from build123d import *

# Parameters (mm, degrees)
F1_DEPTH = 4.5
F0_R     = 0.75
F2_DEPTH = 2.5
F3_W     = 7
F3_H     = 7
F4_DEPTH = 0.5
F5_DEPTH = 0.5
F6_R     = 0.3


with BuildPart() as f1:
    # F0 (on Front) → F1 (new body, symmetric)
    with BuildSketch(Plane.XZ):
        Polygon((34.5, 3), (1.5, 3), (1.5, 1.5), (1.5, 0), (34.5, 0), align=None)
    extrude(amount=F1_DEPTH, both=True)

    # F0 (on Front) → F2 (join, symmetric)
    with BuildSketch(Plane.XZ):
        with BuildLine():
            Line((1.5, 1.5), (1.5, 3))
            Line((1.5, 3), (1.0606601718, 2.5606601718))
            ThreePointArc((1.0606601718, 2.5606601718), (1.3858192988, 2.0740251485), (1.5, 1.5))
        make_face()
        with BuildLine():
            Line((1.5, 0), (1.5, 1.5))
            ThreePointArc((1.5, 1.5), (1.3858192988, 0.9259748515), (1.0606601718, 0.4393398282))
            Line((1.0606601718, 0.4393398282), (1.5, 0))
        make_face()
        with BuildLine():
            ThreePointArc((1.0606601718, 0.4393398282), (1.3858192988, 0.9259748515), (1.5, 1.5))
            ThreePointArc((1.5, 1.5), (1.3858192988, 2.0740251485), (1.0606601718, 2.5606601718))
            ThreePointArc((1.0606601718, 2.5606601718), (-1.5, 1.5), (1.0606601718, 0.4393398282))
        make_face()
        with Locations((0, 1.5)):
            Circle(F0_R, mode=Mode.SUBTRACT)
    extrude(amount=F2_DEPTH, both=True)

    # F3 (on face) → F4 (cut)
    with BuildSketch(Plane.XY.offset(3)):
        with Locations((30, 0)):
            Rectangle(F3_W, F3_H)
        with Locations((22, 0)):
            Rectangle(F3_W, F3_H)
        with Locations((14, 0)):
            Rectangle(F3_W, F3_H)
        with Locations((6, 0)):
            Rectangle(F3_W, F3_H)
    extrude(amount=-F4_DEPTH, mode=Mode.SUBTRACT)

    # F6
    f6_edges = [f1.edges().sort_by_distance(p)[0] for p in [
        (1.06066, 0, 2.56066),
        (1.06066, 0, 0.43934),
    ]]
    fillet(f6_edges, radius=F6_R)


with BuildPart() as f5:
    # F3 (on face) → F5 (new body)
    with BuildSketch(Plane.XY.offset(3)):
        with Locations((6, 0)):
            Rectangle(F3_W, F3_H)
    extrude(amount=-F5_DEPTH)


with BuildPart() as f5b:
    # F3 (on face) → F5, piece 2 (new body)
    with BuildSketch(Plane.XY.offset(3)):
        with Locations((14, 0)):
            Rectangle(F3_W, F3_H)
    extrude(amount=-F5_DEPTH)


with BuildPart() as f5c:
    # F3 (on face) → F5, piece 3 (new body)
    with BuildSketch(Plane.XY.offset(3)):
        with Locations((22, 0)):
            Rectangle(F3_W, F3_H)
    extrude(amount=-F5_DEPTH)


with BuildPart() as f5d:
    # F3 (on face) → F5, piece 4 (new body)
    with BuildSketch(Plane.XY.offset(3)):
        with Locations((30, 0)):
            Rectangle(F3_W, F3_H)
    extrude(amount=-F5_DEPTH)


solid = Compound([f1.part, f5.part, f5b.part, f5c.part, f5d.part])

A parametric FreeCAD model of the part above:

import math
import FreeCAD as App
import Part
import Sketcher

V = App.Vector
Q = App.Units.Quantity


def edges_at(feature, points):
    """Names of the edges that pass closest to the given points."""
    edges = feature.Shape.Edges
    near = lambda p: min(range(len(edges)), key=lambda i: edges[i].distToShape(Part.Vertex(*p))[0])
    return sorted({f"Edge{near(p) + 1}" for p in points})

doc = App.newDocument("Part")
body = doc.addObject("PartDesign::Body", "Body")

# Sketch on XZ plane
sketch1 = body.newObject("Sketcher::SketchObject", "Sketch")
sketch1.AttachmentSupport = (doc.getObject("XZ_Plane"), [""])
sketch1.MapMode = "FlatFace"
sketch1.addGeometry([
    Part.LineSegment(V(34.5, 3, 0), V(1.5, 3, 0)),
    Part.LineSegment(V(1.5, 3, 0), V(1.5, 0, 0)),
    Part.LineSegment(V(1.5, 0, 0), V(34.5, 0, 0)),
    Part.LineSegment(V(34.5, 0, 0), V(34.5, 3, 0)),
], False)
sketch1.addConstraint([
    Sketcher.Constraint("Coincident", 0, 2, 1, 1),
    Sketcher.Constraint("Coincident", 1, 2, 2, 1),
    Sketcher.Constraint("Coincident", 2, 2, 3, 1),
    Sketcher.Constraint("Coincident", 3, 2, 0, 1),
    Sketcher.Constraint("Horizontal", 0),
    Sketcher.Constraint("Vertical", 1),
    Sketcher.Constraint("Horizontal", 2),
    Sketcher.Constraint("Vertical", 3),
    Sketcher.Constraint("PointOnObject", 1, 2, -1),
    Sketcher.Constraint("DistanceX", 0, 2, 0, 1, Q("33 mm")),
    Sketcher.Constraint("DistanceY", 1, 2, 1, 1, Q("3 mm")),
    Sketcher.Constraint("DistanceX", -1, 1, 0, 2, Q("1.5 mm")),
])
pad1 = body.newObject("PartDesign::Pad", "Pad")
pad1.Profile = sketch1
pad1.Length = 9
pad1.Midplane = True

# Sketch on XZ plane
sketch2 = body.newObject("Sketcher::SketchObject", "Sketch001")
sketch2.AttachmentSupport = (doc.getObject("XZ_Plane"), [""])
sketch2.MapMode = "FlatFace"
sketch2.addGeometry([
    Part.LineSegment(V(1.5, 3, 0), V(1.06066, 2.56066, 0)),  # 0
    Part.ArcOfCircle(Part.Circle(V(0, 1.5, 0), V(0, 0, 1), 1.5), math.radians(45), math.radians(315)),  # 1
    Part.LineSegment(V(1.06066, 0.43934, 0), V(1.5, 0, 0)),  # 2
    Part.LineSegment(V(1.5, 0, 0), V(1.5, 3, 0)),  # 3
    Part.Circle(V(0, 1.5, 0), V(0, 0, 1), 0.75),  # 4
], False)
sketch2.addConstraint([
    Sketcher.Constraint("Coincident", 0, 2, 1, 1),
    Sketcher.Constraint("Coincident", 1, 2, 2, 1),
    Sketcher.Constraint("Coincident", 2, 2, 3, 1),
    Sketcher.Constraint("Coincident", 3, 2, 0, 1),
    Sketcher.Constraint("Vertical", 3),
    Sketcher.Constraint("Coincident", 4, 3, 1, 3),
    Sketcher.Constraint("PointOnObject", 1, 3, -2),
    Sketcher.Constraint("PointOnObject", 2, 2, -1),
    Sketcher.Constraint("Perpendicular", 0, 2),
    Sketcher.Constraint("Vertical", 0, 2, 1, 2),
    Sketcher.Constraint("Equal", 0, 2),
    Sketcher.Constraint("Diameter", 4, Q("1.5 mm")),
    Sketcher.Constraint("Radius", 1, Q("1.5 mm")),
    Sketcher.Constraint("DistanceY", 3, 1, 3, 2, Q("3 mm")),
    Sketcher.Constraint("DistanceX", -1, 1, 2, 2, Q("1.5 mm")),
])
pad2 = body.newObject("PartDesign::Pad", "Pad001")
pad2.Profile = sketch2
pad2.Length = 5
pad2.Midplane = True

# Sketch on XY plane
sketch3 = body.newObject("Sketcher::SketchObject", "Sketch002")
sketch3.AttachmentSupport = (doc.getObject("XY_Plane"), [""])
sketch3.MapMode = "FlatFace"
sketch3.AttachmentOffset = App.Placement(V(0, 0, 3), App.Rotation())
sketch3.addGeometry([
    Part.LineSegment(V(26.5, 3.5, 0), V(26.5, -3.5, 0)),  # 0
    Part.LineSegment(V(26.5, -3.5, 0), V(33.5, -3.5, 0)),  # 1
    Part.LineSegment(V(33.5, -3.5, 0), V(33.5, 3.5, 0)),  # 2
    Part.LineSegment(V(33.5, 3.5, 0), V(26.5, 3.5, 0)),  # 3
    Part.LineSegment(V(18.5, 3.5, 0), V(18.5, -3.5, 0)),  # 4
    Part.LineSegment(V(18.5, -3.5, 0), V(25.5, -3.5, 0)),  # 5
    Part.LineSegment(V(25.5, -3.5, 0), V(25.5, 3.5, 0)),  # 6
    Part.LineSegment(V(25.5, 3.5, 0), V(18.5, 3.5, 0)),  # 7
    Part.LineSegment(V(10.5, 3.5, 0), V(10.5, -3.5, 0)),  # 8
    Part.LineSegment(V(10.5, -3.5, 0), V(17.5, -3.5, 0)),  # 9
    Part.LineSegment(V(17.5, -3.5, 0), V(17.5, 3.5, 0)),  # 10
    Part.LineSegment(V(17.5, 3.5, 0), V(10.5, 3.5, 0)),  # 11
    Part.LineSegment(V(2.5, 3.5, 0), V(2.5, -3.5, 0)),  # 12
    Part.LineSegment(V(2.5, -3.5, 0), V(9.5, -3.5, 0)),  # 13
    Part.LineSegment(V(9.5, -3.5, 0), V(9.5, 3.5, 0)),  # 14
    Part.LineSegment(V(9.5, 3.5, 0), V(2.5, 3.5, 0)),  # 15
], False)
sketch3.addConstraint([
    Sketcher.Constraint("Coincident", 0, 2, 1, 1),
    Sketcher.Constraint("Coincident", 1, 2, 2, 1),
    Sketcher.Constraint("Coincident", 2, 2, 3, 1),
    Sketcher.Constraint("Coincident", 3, 2, 0, 1),
    Sketcher.Constraint("Coincident", 4, 2, 5, 1),
    Sketcher.Constraint("Coincident", 5, 2, 6, 1),
    Sketcher.Constraint("Coincident", 6, 2, 7, 1),
    Sketcher.Constraint("Coincident", 7, 2, 4, 1),
    Sketcher.Constraint("Coincident", 8, 2, 9, 1),
    Sketcher.Constraint("Coincident", 9, 2, 10, 1),
    Sketcher.Constraint("Coincident", 10, 2, 11, 1),
    Sketcher.Constraint("Coincident", 11, 2, 8, 1),
    Sketcher.Constraint("Coincident", 12, 2, 13, 1),
    Sketcher.Constraint("Coincident", 13, 2, 14, 1),
    Sketcher.Constraint("Coincident", 14, 2, 15, 1),
    Sketcher.Constraint("Coincident", 15, 2, 12, 1),
    Sketcher.Constraint("Vertical", 0),
    Sketcher.Constraint("Horizontal", 1),
    Sketcher.Constraint("Vertical", 2),
    Sketcher.Constraint("Horizontal", 3),
    Sketcher.Constraint("Vertical", 4),
    Sketcher.Constraint("Horizontal", 5),
    Sketcher.Constraint("Vertical", 6),
    Sketcher.Constraint("Horizontal", 7),
    Sketcher.Constraint("Vertical", 8),
    Sketcher.Constraint("Horizontal", 9),
    Sketcher.Constraint("Vertical", 10),
    Sketcher.Constraint("Horizontal", 11),
    Sketcher.Constraint("Vertical", 12),
    Sketcher.Constraint("Horizontal", 13),
    Sketcher.Constraint("Vertical", 14),
    Sketcher.Constraint("Horizontal", 15),
    Sketcher.Constraint("Horizontal", 1, 2, 4, 2),
    Sketcher.Constraint("Horizontal", 3, 2, 6, 2),
    Sketcher.Constraint("Horizontal", 5, 2, 8, 2),
    Sketcher.Constraint("Horizontal", 7, 2, 10, 2),
    Sketcher.Constraint("Horizontal", 9, 2, 12, 2),
    Sketcher.Constraint("Horizontal", 11, 2, 14, 2),
    Sketcher.Constraint("Equal", 3, 5),
    Sketcher.Constraint("Equal", 7, 9),
    Sketcher.Constraint("Equal", 11, 13),
    Sketcher.Constraint("Equal", 15, 0),
    Sketcher.Constraint("DistanceX", 1, 1, 1, 2, Q("7 mm")),
    Sketcher.Constraint("DistanceX", 4, 2, 0, 2, Q("8 mm")),
    Sketcher.Constraint("DistanceX", 8, 2, 4, 2, Q("8 mm")),
    Sketcher.Constraint("DistanceX", 12, 2, 8, 2, Q("8 mm")),
    Sketcher.Constraint("DistanceX", -1, 1, 0, 2, Q("26.5 mm")),
    Sketcher.Constraint("DistanceY", 0, 2, -1, 1, Q("3.5 mm")),
])
pocket1 = body.newObject("PartDesign::Pocket", "Pocket")
pocket1.Profile = sketch3
pocket1.Length = 0.5
doc.recompute()

fillet = body.newObject("PartDesign::Fillet", "Fillet")
fillet.Base = (pocket1, edges_at(pocket1, [(1.061, 0, 2.561), (1.061, 0, 0.439)]))
fillet.Radius = 0.3
body2 = doc.addObject("PartDesign::Body", "Body001")

# Sketch on XY plane
sketch4 = body2.newObject("Sketcher::SketchObject", "Sketch003")
sketch4.AttachmentSupport = (doc.getObject("XY_Plane001"), [""])
sketch4.MapMode = "FlatFace"
sketch4.AttachmentOffset = App.Placement(V(0, 0, 3), App.Rotation())
sketch4.addGeometry([
    Part.LineSegment(V(2.5, 3.5, 0), V(2.5, -3.5, 0)),
    Part.LineSegment(V(2.5, -3.5, 0), V(9.5, -3.5, 0)),
    Part.LineSegment(V(9.5, -3.5, 0), V(9.5, 3.5, 0)),
    Part.LineSegment(V(9.5, 3.5, 0), V(2.5, 3.5, 0)),
], False)
sketch4.addConstraint([
    Sketcher.Constraint("Coincident", 0, 2, 1, 1),
    Sketcher.Constraint("Coincident", 1, 2, 2, 1),
    Sketcher.Constraint("Coincident", 2, 2, 3, 1),
    Sketcher.Constraint("Coincident", 3, 2, 0, 1),
    Sketcher.Constraint("Vertical", 0),
    Sketcher.Constraint("Horizontal", 1),
    Sketcher.Constraint("Vertical", 2),
    Sketcher.Constraint("Horizontal", 3),
    Sketcher.Constraint("Equal", 3, 0),
    Sketcher.Constraint("DistanceX", 1, 1, 1, 2, Q("7 mm")),
    Sketcher.Constraint("DistanceX", -1, 1, 0, 2, Q("2.5 mm")),
    Sketcher.Constraint("DistanceY", 0, 2, -1, 1, Q("3.5 mm")),
])
pad3 = body2.newObject("PartDesign::Pad", "Pad002")
pad3.Profile = sketch4
pad3.Length = 0.5
pad3.Reversed = True
body3 = doc.addObject("PartDesign::Body", "Body002")

# Sketch on XY plane
sketch5 = body3.newObject("Sketcher::SketchObject", "Sketch004")
sketch5.AttachmentSupport = (doc.getObject("XY_Plane002"), [""])
sketch5.MapMode = "FlatFace"
sketch5.AttachmentOffset = App.Placement(V(0, 0, 3), App.Rotation())
sketch5.addGeometry([
    Part.LineSegment(V(10.5, 3.5, 0), V(10.5, -3.5, 0)),
    Part.LineSegment(V(10.5, -3.5, 0), V(17.5, -3.5, 0)),
    Part.LineSegment(V(17.5, -3.5, 0), V(17.5, 3.5, 0)),
    Part.LineSegment(V(17.5, 3.5, 0), V(10.5, 3.5, 0)),
], False)
sketch5.addConstraint([
    Sketcher.Constraint("Coincident", 0, 2, 1, 1),
    Sketcher.Constraint("Coincident", 1, 2, 2, 1),
    Sketcher.Constraint("Coincident", 2, 2, 3, 1),
    Sketcher.Constraint("Coincident", 3, 2, 0, 1),
    Sketcher.Constraint("Vertical", 0),
    Sketcher.Constraint("Horizontal", 1),
    Sketcher.Constraint("Vertical", 2),
    Sketcher.Constraint("Horizontal", 3),
    Sketcher.Constraint("Equal", 3, 0),
    Sketcher.Constraint("DistanceX", 1, 1, 1, 2, Q("7 mm")),
    Sketcher.Constraint("DistanceX", -1, 1, 0, 2, Q("10.5 mm")),
    Sketcher.Constraint("DistanceY", 0, 2, -1, 1, Q("3.5 mm")),
])
pad4 = body3.newObject("PartDesign::Pad", "Pad003")
pad4.Profile = sketch5
pad4.Length = 0.5
pad4.Reversed = True
body4 = doc.addObject("PartDesign::Body", "Body003")

# Sketch on XY plane
sketch6 = body4.newObject("Sketcher::SketchObject", "Sketch005")
sketch6.AttachmentSupport = (doc.getObject("XY_Plane003"), [""])
sketch6.MapMode = "FlatFace"
sketch6.AttachmentOffset = App.Placement(V(0, 0, 3), App.Rotation())
sketch6.addGeometry([
    Part.LineSegment(V(18.5, 3.5, 0), V(18.5, -3.5, 0)),
    Part.LineSegment(V(18.5, -3.5, 0), V(25.5, -3.5, 0)),
    Part.LineSegment(V(25.5, -3.5, 0), V(25.5, 3.5, 0)),
    Part.LineSegment(V(25.5, 3.5, 0), V(18.5, 3.5, 0)),
], False)
sketch6.addConstraint([
    Sketcher.Constraint("Coincident", 0, 2, 1, 1),
    Sketcher.Constraint("Coincident", 1, 2, 2, 1),
    Sketcher.Constraint("Coincident", 2, 2, 3, 1),
    Sketcher.Constraint("Coincident", 3, 2, 0, 1),
    Sketcher.Constraint("Vertical", 0),
    Sketcher.Constraint("Horizontal", 1),
    Sketcher.Constraint("Vertical", 2),
    Sketcher.Constraint("Horizontal", 3),
    Sketcher.Constraint("Equal", 3, 0),
    Sketcher.Constraint("DistanceX", 1, 1, 1, 2, Q("7 mm")),
    Sketcher.Constraint("DistanceX", -1, 1, 0, 2, Q("18.5 mm")),
    Sketcher.Constraint("DistanceY", 0, 2, -1, 1, Q("3.5 mm")),
])
pad5 = body4.newObject("PartDesign::Pad", "Pad004")
pad5.Profile = sketch6
pad5.Length = 0.5
pad5.Reversed = True
body5 = doc.addObject("PartDesign::Body", "Body004")

# Sketch on XY plane
sketch7 = body5.newObject("Sketcher::SketchObject", "Sketch006")
sketch7.AttachmentSupport = (doc.getObject("XY_Plane004"), [""])
sketch7.MapMode = "FlatFace"
sketch7.AttachmentOffset = App.Placement(V(0, 0, 3), App.Rotation())
sketch7.addGeometry([
    Part.LineSegment(V(26.5, 3.5, 0), V(26.5, -3.5, 0)),
    Part.LineSegment(V(26.5, -3.5, 0), V(33.5, -3.5, 0)),
    Part.LineSegment(V(33.5, -3.5, 0), V(33.5, 3.5, 0)),
    Part.LineSegment(V(33.5, 3.5, 0), V(26.5, 3.5, 0)),
], False)
sketch7.addConstraint([
    Sketcher.Constraint("Coincident", 0, 2, 1, 1),
    Sketcher.Constraint("Coincident", 1, 2, 2, 1),
    Sketcher.Constraint("Coincident", 2, 2, 3, 1),
    Sketcher.Constraint("Coincident", 3, 2, 0, 1),
    Sketcher.Constraint("Vertical", 0),
    Sketcher.Constraint("Horizontal", 1),
    Sketcher.Constraint("Vertical", 2),
    Sketcher.Constraint("Horizontal", 3),
    Sketcher.Constraint("Equal", 3, 0),
    Sketcher.Constraint("DistanceX", 1, 1, 1, 2, Q("7 mm")),
    Sketcher.Constraint("DistanceX", -1, 1, 0, 2, Q("26.5 mm")),
    Sketcher.Constraint("DistanceY", 0, 2, -1, 1, Q("3.5 mm")),
])
pad6 = body5.newObject("PartDesign::Pad", "Pad005")
pad6.Profile = sketch7
pad6.Length = 0.5
pad6.Reversed = True

doc.recompute()
